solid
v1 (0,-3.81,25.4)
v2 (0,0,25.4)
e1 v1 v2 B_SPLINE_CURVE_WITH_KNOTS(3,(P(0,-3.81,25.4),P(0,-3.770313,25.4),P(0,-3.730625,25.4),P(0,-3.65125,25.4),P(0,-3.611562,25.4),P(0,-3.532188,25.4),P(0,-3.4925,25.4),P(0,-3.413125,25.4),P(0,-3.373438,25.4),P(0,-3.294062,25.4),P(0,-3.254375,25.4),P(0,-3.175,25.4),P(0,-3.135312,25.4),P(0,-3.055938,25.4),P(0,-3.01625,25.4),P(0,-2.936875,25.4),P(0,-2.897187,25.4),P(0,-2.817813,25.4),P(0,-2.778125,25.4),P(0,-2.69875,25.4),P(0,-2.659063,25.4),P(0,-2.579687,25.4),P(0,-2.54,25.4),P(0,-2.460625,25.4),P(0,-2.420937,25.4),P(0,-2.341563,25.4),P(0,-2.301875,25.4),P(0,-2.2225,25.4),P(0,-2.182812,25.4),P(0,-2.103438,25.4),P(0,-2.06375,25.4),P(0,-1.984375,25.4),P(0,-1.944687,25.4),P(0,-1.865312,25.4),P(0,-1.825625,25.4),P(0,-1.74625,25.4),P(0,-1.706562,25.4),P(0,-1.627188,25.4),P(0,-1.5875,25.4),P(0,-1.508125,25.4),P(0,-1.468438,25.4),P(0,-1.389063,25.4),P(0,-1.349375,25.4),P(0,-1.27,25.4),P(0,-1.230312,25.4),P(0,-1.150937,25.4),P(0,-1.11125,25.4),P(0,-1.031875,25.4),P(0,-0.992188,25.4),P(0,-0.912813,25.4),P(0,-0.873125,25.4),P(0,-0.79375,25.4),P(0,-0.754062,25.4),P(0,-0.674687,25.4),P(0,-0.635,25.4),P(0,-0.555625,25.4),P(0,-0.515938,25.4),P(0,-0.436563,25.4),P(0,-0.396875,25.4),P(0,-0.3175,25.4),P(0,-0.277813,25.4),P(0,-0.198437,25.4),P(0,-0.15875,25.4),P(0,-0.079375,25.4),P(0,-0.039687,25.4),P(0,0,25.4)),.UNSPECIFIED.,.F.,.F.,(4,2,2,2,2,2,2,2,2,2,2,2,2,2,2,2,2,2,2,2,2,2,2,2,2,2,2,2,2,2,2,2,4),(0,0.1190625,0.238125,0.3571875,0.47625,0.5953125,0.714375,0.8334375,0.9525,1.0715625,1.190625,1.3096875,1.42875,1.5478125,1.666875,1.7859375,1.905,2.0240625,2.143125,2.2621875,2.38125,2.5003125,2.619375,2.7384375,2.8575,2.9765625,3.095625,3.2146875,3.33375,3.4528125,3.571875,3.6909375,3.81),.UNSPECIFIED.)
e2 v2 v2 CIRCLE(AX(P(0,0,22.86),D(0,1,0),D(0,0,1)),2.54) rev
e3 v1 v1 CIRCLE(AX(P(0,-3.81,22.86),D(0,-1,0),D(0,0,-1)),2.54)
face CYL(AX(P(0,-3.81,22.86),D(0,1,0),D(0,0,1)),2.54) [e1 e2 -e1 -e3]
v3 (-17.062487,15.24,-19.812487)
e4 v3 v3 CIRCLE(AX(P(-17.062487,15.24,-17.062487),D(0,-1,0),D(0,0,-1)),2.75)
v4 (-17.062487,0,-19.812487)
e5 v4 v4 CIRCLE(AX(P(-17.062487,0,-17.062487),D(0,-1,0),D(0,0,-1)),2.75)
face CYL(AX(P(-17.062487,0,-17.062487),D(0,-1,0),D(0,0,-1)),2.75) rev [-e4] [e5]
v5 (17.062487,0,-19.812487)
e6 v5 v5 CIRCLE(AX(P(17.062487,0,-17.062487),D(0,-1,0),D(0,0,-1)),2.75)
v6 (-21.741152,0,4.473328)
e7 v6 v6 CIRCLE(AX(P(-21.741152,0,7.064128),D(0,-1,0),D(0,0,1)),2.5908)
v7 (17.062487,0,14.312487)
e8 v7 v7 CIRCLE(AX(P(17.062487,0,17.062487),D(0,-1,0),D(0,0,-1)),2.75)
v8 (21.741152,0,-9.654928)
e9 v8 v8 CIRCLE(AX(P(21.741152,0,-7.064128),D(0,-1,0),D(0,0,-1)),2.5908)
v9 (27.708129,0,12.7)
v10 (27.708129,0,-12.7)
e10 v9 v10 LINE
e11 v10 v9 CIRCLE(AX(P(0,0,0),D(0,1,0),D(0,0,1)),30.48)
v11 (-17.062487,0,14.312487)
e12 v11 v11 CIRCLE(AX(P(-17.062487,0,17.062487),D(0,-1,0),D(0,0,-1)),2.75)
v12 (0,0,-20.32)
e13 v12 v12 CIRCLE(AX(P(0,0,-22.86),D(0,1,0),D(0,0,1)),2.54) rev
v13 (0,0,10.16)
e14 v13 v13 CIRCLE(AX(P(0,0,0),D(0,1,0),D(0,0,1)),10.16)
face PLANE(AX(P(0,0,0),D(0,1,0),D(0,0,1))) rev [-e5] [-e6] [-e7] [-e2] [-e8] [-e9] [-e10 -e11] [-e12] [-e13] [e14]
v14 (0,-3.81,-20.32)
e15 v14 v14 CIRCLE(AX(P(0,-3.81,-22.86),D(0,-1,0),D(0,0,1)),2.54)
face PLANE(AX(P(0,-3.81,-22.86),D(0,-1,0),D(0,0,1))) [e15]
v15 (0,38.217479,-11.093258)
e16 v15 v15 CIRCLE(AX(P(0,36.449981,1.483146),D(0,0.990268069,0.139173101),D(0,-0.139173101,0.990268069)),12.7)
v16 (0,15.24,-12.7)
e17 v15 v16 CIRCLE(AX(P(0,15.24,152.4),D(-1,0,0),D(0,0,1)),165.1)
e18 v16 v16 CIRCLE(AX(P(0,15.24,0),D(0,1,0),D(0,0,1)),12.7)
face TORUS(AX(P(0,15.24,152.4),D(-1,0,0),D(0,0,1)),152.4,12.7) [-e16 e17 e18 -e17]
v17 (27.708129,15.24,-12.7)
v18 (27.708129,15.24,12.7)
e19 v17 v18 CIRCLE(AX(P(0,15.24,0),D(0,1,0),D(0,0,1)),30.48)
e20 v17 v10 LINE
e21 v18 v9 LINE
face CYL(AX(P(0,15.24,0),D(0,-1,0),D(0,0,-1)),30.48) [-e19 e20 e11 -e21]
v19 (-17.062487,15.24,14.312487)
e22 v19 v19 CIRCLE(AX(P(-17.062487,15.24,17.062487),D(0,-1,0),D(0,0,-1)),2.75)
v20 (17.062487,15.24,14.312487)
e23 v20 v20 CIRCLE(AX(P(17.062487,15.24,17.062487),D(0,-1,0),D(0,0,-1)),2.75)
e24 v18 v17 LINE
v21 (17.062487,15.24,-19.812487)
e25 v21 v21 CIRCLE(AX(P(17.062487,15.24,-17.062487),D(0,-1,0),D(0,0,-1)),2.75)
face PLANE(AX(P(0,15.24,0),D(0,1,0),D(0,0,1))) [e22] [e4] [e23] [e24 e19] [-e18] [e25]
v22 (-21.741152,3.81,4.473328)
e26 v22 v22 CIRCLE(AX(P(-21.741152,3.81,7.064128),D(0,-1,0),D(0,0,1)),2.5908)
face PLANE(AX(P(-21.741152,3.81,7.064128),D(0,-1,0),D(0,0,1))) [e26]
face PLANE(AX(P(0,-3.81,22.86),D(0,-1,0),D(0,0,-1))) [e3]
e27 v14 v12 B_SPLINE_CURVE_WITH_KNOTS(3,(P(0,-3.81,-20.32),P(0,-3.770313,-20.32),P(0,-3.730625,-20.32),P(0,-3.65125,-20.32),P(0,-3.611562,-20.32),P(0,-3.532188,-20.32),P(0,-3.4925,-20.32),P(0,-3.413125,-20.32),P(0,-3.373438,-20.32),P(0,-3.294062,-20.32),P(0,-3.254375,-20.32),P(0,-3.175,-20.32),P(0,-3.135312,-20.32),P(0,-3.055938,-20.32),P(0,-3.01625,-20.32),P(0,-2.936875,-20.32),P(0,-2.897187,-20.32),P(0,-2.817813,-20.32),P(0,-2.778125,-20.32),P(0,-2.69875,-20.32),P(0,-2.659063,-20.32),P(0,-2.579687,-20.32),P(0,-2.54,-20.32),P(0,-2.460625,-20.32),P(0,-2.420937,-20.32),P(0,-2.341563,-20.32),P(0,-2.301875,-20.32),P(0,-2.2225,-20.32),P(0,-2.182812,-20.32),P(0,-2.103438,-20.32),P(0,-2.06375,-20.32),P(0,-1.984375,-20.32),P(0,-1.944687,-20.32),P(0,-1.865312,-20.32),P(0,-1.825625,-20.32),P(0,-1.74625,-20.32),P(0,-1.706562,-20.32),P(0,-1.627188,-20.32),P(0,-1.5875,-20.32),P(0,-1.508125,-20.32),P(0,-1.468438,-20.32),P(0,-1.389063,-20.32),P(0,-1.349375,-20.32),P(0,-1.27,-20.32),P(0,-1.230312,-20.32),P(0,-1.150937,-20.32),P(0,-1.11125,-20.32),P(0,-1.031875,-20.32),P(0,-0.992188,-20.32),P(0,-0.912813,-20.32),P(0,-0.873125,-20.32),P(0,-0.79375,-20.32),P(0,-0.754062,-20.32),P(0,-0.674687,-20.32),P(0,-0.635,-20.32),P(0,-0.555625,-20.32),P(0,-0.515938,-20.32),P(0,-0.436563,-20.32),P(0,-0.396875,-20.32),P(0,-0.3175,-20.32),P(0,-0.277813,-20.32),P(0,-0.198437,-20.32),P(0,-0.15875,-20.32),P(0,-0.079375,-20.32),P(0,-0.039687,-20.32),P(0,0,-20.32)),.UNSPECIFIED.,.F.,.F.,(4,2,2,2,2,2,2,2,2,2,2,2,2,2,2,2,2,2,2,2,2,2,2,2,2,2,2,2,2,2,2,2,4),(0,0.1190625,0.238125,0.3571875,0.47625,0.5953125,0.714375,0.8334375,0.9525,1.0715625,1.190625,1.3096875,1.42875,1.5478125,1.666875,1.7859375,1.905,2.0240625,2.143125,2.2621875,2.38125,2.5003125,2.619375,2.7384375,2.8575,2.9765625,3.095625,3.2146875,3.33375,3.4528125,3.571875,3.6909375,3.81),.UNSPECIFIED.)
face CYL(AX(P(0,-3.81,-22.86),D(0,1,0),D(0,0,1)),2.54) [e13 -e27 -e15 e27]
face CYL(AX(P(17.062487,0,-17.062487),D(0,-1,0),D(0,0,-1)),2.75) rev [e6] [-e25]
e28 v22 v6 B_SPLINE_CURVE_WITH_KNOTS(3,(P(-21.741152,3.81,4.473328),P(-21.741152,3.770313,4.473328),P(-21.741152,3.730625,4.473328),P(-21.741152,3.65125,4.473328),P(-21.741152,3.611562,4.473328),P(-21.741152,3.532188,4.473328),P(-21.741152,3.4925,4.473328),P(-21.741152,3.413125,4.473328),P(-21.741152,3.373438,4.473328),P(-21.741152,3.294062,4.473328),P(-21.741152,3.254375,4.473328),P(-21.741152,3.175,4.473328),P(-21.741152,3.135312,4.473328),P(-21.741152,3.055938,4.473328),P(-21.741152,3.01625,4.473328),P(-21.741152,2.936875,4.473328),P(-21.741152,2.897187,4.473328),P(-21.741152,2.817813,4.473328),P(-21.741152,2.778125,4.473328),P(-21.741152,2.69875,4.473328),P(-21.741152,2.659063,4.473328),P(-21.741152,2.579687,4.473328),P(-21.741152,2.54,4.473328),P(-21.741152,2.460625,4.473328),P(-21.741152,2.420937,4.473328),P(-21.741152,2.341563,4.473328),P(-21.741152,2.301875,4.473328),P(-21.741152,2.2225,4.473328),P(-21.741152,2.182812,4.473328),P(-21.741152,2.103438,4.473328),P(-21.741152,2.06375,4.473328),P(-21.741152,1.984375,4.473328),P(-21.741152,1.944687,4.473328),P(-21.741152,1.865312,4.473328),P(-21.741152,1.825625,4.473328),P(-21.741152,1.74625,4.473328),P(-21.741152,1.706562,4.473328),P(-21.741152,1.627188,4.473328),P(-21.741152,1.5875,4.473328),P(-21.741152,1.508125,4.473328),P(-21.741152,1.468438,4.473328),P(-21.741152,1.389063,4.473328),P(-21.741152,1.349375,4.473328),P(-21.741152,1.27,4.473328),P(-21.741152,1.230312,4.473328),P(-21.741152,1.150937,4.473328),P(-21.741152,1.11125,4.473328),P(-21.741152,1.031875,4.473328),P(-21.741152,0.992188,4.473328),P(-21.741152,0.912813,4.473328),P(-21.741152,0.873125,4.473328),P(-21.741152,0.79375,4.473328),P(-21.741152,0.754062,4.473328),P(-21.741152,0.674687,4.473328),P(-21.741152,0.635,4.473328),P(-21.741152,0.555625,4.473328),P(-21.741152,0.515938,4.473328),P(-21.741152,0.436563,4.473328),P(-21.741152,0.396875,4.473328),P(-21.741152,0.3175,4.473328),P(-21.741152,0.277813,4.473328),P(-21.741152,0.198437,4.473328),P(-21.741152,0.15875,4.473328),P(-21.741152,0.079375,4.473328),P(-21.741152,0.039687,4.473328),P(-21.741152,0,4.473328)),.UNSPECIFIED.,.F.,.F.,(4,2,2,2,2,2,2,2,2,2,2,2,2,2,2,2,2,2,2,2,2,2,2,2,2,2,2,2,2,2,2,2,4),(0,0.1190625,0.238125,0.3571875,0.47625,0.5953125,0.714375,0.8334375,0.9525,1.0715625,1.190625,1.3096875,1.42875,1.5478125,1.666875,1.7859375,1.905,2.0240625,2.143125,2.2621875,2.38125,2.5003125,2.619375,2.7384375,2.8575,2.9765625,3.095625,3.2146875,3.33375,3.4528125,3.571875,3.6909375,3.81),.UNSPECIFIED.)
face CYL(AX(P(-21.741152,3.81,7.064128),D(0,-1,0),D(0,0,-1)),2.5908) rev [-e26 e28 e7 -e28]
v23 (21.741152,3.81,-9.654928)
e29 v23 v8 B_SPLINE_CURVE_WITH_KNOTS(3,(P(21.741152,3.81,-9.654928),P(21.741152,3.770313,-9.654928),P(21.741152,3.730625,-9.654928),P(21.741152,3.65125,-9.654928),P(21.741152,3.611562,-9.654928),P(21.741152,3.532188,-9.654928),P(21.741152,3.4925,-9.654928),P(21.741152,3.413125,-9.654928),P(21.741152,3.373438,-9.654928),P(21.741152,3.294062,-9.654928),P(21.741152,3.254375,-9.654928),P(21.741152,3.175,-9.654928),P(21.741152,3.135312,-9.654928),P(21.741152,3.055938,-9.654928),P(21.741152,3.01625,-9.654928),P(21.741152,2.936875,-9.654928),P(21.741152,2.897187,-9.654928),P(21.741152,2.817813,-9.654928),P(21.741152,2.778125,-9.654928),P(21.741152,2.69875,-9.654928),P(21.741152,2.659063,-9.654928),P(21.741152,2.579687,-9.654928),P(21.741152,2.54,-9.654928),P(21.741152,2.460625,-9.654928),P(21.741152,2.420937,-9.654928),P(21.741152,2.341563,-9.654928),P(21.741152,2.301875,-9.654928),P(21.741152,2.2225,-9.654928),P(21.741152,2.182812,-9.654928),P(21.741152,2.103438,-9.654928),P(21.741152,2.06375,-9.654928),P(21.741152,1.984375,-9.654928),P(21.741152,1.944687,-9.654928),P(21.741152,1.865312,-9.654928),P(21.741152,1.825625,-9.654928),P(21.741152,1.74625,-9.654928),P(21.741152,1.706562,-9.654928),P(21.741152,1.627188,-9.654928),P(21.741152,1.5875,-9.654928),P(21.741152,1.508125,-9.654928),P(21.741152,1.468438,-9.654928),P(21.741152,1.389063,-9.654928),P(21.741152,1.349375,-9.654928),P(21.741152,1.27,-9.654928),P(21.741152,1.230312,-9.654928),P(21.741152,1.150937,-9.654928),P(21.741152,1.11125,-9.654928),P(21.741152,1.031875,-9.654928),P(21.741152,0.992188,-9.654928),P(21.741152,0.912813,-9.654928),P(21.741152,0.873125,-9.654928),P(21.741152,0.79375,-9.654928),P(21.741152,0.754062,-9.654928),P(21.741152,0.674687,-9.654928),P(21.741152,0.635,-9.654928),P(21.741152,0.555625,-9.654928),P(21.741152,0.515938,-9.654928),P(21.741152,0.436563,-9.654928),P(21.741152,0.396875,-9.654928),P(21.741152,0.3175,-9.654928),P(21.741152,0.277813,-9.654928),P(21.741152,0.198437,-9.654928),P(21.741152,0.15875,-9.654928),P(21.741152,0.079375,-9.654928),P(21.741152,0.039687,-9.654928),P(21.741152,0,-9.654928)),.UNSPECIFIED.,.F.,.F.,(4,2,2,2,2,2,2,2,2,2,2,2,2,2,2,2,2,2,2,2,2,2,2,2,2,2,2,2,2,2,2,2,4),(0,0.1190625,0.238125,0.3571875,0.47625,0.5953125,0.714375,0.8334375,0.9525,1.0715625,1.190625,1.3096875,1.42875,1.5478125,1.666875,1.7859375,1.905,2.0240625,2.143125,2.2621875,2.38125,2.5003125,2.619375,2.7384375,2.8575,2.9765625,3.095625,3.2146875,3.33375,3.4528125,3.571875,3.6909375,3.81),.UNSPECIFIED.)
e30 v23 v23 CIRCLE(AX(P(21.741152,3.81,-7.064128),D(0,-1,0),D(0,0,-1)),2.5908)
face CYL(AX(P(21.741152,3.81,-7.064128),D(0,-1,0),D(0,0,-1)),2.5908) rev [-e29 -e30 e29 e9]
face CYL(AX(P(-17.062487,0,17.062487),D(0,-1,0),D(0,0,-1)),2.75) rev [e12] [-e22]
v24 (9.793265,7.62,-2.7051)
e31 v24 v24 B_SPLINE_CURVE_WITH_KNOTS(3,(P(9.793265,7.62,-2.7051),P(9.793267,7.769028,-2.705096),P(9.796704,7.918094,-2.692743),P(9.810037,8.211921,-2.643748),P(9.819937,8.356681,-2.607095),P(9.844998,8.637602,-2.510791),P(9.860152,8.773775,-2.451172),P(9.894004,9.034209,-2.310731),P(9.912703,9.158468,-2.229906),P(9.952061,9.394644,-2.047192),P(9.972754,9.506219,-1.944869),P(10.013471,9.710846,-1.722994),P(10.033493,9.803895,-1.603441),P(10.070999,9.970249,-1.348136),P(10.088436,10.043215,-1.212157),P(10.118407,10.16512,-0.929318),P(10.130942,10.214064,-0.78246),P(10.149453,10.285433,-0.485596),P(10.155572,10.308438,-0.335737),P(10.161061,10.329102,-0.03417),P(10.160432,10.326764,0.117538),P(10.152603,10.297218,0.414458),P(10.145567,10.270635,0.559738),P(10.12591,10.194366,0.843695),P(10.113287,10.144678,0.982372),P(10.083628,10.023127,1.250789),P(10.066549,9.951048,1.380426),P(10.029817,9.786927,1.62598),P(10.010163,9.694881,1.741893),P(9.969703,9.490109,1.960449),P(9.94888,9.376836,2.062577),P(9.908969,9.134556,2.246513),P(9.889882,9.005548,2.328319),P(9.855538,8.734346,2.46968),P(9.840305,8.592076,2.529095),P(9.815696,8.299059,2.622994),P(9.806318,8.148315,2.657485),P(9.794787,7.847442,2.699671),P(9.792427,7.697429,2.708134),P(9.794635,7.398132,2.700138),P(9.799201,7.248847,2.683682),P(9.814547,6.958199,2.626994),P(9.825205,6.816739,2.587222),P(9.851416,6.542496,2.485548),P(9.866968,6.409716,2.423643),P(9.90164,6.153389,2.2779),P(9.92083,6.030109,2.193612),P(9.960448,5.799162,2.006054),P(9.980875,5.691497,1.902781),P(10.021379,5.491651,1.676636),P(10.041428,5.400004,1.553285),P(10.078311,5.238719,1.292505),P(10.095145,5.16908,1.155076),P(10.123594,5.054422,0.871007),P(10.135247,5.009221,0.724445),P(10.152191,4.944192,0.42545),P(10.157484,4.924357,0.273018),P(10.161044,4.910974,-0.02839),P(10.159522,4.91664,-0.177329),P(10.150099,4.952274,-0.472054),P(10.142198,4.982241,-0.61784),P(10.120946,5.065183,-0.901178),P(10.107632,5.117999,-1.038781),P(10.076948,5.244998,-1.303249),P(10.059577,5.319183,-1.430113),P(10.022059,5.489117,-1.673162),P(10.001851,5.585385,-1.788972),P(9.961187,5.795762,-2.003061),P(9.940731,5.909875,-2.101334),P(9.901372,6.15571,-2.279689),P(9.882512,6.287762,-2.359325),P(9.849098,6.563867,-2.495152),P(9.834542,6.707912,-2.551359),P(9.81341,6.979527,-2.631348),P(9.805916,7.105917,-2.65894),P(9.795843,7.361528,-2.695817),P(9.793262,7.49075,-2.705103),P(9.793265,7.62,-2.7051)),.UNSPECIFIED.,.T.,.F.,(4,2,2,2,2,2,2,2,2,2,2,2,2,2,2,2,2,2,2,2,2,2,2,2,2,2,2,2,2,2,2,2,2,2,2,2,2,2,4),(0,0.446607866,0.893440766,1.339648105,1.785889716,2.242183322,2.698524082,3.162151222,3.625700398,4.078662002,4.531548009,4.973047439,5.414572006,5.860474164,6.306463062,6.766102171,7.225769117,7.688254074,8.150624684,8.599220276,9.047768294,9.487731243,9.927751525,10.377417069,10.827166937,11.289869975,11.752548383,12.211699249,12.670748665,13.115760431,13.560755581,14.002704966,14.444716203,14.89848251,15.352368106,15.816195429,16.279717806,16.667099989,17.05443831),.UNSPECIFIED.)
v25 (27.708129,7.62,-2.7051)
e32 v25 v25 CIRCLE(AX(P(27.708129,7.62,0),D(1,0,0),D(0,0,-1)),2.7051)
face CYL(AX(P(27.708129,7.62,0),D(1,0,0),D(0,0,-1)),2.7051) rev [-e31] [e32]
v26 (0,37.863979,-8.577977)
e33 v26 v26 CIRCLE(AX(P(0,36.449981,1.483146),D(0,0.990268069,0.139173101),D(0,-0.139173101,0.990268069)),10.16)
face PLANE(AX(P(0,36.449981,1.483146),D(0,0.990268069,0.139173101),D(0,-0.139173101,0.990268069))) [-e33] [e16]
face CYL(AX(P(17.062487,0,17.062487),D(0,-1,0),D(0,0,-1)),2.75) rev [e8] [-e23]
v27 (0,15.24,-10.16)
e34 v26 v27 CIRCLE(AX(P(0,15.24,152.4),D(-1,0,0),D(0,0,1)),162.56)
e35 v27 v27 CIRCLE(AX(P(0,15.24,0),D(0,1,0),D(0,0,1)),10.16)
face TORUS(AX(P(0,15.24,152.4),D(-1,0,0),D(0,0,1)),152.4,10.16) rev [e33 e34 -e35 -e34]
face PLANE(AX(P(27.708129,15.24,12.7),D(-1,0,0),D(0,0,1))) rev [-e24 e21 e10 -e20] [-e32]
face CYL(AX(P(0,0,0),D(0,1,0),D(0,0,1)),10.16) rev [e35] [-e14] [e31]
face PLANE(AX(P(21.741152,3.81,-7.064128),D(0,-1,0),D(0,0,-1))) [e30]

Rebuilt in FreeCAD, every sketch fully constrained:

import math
import FreeCAD as App
import Part
import Sketcher
from FreeCAD import Vector
Q = App.Units.Quantity

doc = App.newDocument("Part")
body = doc.addObject("PartDesign::Body", "Body")

sketch1 = doc.addObject("Sketcher::SketchObject", "Sketch")
body.addObject(sketch1)
sketch1.AttachmentSupport = (doc.XZ_Plane, [""])
sketch1.MapMode = "FlatFace"
sketch1.addGeometry(Part.Circle(Vector(0, 0, 0), Vector(0, 0, 1), 30), False)
sketch1.addConstraint([
    Sketcher.Constraint("Coincident", 0, 3, -1, 1),
    Sketcher.Constraint("Diameter", 0, Q("2.4 in")),
])
pad1 = doc.addObject("PartDesign::Pad", "Pad")
body.addObject(pad1)
pad1.Profile = sketch1
pad1.Length = Q("0.6 in")
pad1.Reversed = True

sketch2 = doc.addObject("Sketcher::SketchObject", "Sketch001")
body.addObject(sketch2)
sketch2.AttachmentSupport = (doc.XZ_Plane, [""])
sketch2.MapMode = "FlatFace"
sketch2.AttachmentOffset = App.Placement(Vector(0, 0, -0.6 * 25.4), App.Rotation())
sketch2.addGeometry(Part.Circle(Vector(0, 0, 0), Vector(0, 0, 1), 10), False)
sketch2.addConstraint([
    Sketcher.Constraint("Coincident", 0, 3, -1, 1),
    Sketcher.Constraint("Diameter", 0, Q("0.8 in")),
])
pocket1 = doc.addObject("PartDesign::Pocket", "Pocket")
body.addObject(pocket1)
pocket1.Profile = sketch2
pocket1.Type = "ThroughAll"
pocket1.Midplane = True

sketch3 = doc.addObject("Sketcher::SketchObject", "Sketch002")
body.addObject(sketch3)
sketch3.AttachmentSupport = (doc.XZ_Plane, [""])
sketch3.MapMode = "FlatFace"
sketch3.addGeometry(Part.Circle(Vector(-17.1, 17.1, 0), Vector(0, 0, 1), 2.8), False)
sketch3.addConstraint([
    Sketcher.Constraint("Diameter", 0, Q("5.5 mm")),
    Sketcher.Constraint("DistanceX", 0, 3, -1, 1, Q("17.062487 mm")),
    Sketcher.Constraint("DistanceY", -1, 1, 0, 3, Q("17.062487 mm")),
])
doc.recompute()
hole = doc.addObject("PartDesign::Hole", "Hole")
body.addObject(hole)
hole.Profile = sketch3
hole.ThreadType = "None"
hole.Diameter = 5.5
hole.DepthType = "ThroughAll"
doc.recompute()

polarpattern = doc.addObject("PartDesign::PolarPattern", "PolarPattern")
body.addObject(polarpattern)
polarpattern.Originals = [hole]
polarpattern.Axis = (doc.Y_Axis, [""])
polarpattern.Angle = 360
polarpattern.Occurrences = 4
body.Tip = polarpattern

sketch4 = doc.addObject("Sketcher::SketchObject", "Sketch003")
body.addObject(sketch4)
sketch4.AttachmentSupport = (doc.XZ_Plane, [""])
sketch4.MapMode = "FlatFace"
sketch4.addGeometry([
    Part.LineSegment(Vector(28, 13, 0), Vector(28, -13, 0)),
    Part.ArcOfCircle(Part.Circle(Vector(0, 0, 0), Vector(0, 0, 1), 30), math.radians(-25), math.radians(25)),
], False)
sketch4.addConstraint([
    Sketcher.Constraint("Coincident", 0, 1, 1, 2),
    Sketcher.Constraint("Coincident", 1, 1, 0, 2),
    Sketcher.Constraint("Vertical", 0),
    Sketcher.Constraint("Coincident", 1, 3, -1, 1),
    Sketcher.Constraint("Radius", 1, Q("1.2 in")),
    Sketcher.Constraint("DistanceY", 0, 2, 0, 1, Q("1 in")),
])
pocket2 = doc.addObject("PartDesign::Pocket", "Pocket001")
body.addObject(pocket2)
pocket2.Profile = sketch4
pocket2.Type = "ThroughAll"

sketch5 = doc.addObject("Sketcher::SketchObject", "Sketch004")
body.addObject(sketch5)
sketch5.AttachmentSupport = (doc.XZ_Plane, [""])
sketch5.MapMode = "FlatFace"
sketch5.addGeometry(Part.Circle(Vector(21.7, -7.1, 0), Vector(0, 0, 1), 2.6), False)
sketch5.addConstraint([
    Sketcher.Constraint("Diameter", 0, Q("0.204 in")),
    Sketcher.Constraint("DistanceX", -1, 1, 0, 3, Q("21.741152 mm")),
    Sketcher.Constraint("DistanceY", 0, 3, -1, 1, Q("7.064128 mm")),
])
pocket3 = doc.addObject("PartDesign::Pocket", "Pocket002")
body.addObject(pocket3)
pocket3.Profile = sketch5
pocket3.Length = Q("0.15 in")

sketch6 = doc.addObject("Sketcher::SketchObject", "Sketch005")
body.addObject(sketch6)
sketch6.AttachmentSupport = (doc.XZ_Plane, [""])
sketch6.MapMode = "FlatFace"
sketch6.addGeometry(Part.Circle(Vector(0, 22.9, 0), Vector(0, 0, 1), 2.5), False)
sketch6.addConstraint([
    Sketcher.Constraint("PointOnObject", 0, 3, -2),
    Sketcher.Constraint("Diameter", 0, Q("0.2 in")),
    Sketcher.Constraint("DistanceY", -1, 1, 0, 3, Q("0.9 in")),
])
pad2 = doc.addObject("PartDesign::Pad", "Pad001")
body.addObject(pad2)
pad2.Profile = sketch6
pad2.Length = Q("0.15 in")
doc.recompute()

polarpattern2 = doc.addObject("PartDesign::PolarPattern", "PolarPattern001")
body.addObject(polarpattern2)
polarpattern2.Originals = [pocket3]
polarpattern2.Axis = (doc.Y_Axis, [""])
polarpattern2.Angle = 360
polarpattern2.Occurrences = 2
body.Tip = polarpattern2
doc.recompute()

polarpattern3 = doc.addObject("PartDesign::PolarPattern", "PolarPattern002")
body.addObject(polarpattern3)
polarpattern3.Originals = [pad2]
polarpattern3.Axis = (doc.Y_Axis, [""])
polarpattern3.Angle = 360
polarpattern3.Occurrences = 2
body.Tip = polarpattern3

sketch7 = doc.addObject("Sketcher::SketchObject", "Sketch006")
body.addObject(sketch7)
sketch7.AttachmentSupport = (doc.XZ_Plane, [""])
sketch7.MapMode = "FlatFace"
sketch7.AttachmentOffset = App.Placement(Vector(0, 0, -0.6 * 25.4), App.Rotation())
sketch7.addGeometry([
    Part.Circle(Vector(0, 0, 0), Vector(0, 0, 1), 13),
    Part.Circle(Vector(0, 0, 0), Vector(0, 0, 1), 10),
], False)
sketch7.addGeometry(Part.LineSegment(Vector(0, 152, 0), Vector(10, 152, 0)), True)
sketch7.addConstraint([
    Sketcher.Constraint("Horizontal", 2),
    Sketcher.Constraint("Coincident", 0, 3, -1, 1),
    Sketcher.Constraint("Coincident", 1, 3, -1, 1),
    Sketcher.Constraint("PointOnObject", 2, 1, -2),
    Sketcher.Constraint("Diameter", 0, Q("1 in")),
    Sketcher.Constraint("Diameter", 1, Q("0.8 in")),
    Sketcher.Constraint("DistanceY", -1, 1, 2, 1, Q("6 in")),
    Sketcher.Constraint("DistanceX", 2, 1, 2, 2, Q("10 mm")),
])
revolution = doc.addObject("PartDesign::Revolution", "Revolution")
body.addObject(revolution)
revolution.Profile = sketch7
revolution.ReferenceAxis = (sketch7, ["Axis0"])
revolution.Angle = 8

sketch8 = doc.addObject("Sketcher::SketchObject", "Sketch007")
body.addObject(sketch8)
sketch8.AttachmentSupport = (doc.YZ_Plane, [""])
sketch8.MapMode = "FlatFace"
sketch8.AttachmentOffset = App.Placement(Vector(0, 0, 27.708129), App.Rotation())
sketch8.addGeometry(Part.Circle(Vector(7.6, 0, 0), Vector(0, 0, 1), 2.7), False)
sketch8.addConstraint([
    Sketcher.Constraint("PointOnObject", 0, 3, -1),
    Sketcher.Constraint("Diameter", 0, Q("0.213 in")),
    Sketcher.Constraint("DistanceX", -1, 1, 0, 3, Q("0.3 in")),
])
pocket4 = doc.addObject("PartDesign::Pocket", "Pocket003")
body.addObject(pocket4)
pocket4.Profile = sketch8
pocket4.Length = 17.914864

doc.recompute()
